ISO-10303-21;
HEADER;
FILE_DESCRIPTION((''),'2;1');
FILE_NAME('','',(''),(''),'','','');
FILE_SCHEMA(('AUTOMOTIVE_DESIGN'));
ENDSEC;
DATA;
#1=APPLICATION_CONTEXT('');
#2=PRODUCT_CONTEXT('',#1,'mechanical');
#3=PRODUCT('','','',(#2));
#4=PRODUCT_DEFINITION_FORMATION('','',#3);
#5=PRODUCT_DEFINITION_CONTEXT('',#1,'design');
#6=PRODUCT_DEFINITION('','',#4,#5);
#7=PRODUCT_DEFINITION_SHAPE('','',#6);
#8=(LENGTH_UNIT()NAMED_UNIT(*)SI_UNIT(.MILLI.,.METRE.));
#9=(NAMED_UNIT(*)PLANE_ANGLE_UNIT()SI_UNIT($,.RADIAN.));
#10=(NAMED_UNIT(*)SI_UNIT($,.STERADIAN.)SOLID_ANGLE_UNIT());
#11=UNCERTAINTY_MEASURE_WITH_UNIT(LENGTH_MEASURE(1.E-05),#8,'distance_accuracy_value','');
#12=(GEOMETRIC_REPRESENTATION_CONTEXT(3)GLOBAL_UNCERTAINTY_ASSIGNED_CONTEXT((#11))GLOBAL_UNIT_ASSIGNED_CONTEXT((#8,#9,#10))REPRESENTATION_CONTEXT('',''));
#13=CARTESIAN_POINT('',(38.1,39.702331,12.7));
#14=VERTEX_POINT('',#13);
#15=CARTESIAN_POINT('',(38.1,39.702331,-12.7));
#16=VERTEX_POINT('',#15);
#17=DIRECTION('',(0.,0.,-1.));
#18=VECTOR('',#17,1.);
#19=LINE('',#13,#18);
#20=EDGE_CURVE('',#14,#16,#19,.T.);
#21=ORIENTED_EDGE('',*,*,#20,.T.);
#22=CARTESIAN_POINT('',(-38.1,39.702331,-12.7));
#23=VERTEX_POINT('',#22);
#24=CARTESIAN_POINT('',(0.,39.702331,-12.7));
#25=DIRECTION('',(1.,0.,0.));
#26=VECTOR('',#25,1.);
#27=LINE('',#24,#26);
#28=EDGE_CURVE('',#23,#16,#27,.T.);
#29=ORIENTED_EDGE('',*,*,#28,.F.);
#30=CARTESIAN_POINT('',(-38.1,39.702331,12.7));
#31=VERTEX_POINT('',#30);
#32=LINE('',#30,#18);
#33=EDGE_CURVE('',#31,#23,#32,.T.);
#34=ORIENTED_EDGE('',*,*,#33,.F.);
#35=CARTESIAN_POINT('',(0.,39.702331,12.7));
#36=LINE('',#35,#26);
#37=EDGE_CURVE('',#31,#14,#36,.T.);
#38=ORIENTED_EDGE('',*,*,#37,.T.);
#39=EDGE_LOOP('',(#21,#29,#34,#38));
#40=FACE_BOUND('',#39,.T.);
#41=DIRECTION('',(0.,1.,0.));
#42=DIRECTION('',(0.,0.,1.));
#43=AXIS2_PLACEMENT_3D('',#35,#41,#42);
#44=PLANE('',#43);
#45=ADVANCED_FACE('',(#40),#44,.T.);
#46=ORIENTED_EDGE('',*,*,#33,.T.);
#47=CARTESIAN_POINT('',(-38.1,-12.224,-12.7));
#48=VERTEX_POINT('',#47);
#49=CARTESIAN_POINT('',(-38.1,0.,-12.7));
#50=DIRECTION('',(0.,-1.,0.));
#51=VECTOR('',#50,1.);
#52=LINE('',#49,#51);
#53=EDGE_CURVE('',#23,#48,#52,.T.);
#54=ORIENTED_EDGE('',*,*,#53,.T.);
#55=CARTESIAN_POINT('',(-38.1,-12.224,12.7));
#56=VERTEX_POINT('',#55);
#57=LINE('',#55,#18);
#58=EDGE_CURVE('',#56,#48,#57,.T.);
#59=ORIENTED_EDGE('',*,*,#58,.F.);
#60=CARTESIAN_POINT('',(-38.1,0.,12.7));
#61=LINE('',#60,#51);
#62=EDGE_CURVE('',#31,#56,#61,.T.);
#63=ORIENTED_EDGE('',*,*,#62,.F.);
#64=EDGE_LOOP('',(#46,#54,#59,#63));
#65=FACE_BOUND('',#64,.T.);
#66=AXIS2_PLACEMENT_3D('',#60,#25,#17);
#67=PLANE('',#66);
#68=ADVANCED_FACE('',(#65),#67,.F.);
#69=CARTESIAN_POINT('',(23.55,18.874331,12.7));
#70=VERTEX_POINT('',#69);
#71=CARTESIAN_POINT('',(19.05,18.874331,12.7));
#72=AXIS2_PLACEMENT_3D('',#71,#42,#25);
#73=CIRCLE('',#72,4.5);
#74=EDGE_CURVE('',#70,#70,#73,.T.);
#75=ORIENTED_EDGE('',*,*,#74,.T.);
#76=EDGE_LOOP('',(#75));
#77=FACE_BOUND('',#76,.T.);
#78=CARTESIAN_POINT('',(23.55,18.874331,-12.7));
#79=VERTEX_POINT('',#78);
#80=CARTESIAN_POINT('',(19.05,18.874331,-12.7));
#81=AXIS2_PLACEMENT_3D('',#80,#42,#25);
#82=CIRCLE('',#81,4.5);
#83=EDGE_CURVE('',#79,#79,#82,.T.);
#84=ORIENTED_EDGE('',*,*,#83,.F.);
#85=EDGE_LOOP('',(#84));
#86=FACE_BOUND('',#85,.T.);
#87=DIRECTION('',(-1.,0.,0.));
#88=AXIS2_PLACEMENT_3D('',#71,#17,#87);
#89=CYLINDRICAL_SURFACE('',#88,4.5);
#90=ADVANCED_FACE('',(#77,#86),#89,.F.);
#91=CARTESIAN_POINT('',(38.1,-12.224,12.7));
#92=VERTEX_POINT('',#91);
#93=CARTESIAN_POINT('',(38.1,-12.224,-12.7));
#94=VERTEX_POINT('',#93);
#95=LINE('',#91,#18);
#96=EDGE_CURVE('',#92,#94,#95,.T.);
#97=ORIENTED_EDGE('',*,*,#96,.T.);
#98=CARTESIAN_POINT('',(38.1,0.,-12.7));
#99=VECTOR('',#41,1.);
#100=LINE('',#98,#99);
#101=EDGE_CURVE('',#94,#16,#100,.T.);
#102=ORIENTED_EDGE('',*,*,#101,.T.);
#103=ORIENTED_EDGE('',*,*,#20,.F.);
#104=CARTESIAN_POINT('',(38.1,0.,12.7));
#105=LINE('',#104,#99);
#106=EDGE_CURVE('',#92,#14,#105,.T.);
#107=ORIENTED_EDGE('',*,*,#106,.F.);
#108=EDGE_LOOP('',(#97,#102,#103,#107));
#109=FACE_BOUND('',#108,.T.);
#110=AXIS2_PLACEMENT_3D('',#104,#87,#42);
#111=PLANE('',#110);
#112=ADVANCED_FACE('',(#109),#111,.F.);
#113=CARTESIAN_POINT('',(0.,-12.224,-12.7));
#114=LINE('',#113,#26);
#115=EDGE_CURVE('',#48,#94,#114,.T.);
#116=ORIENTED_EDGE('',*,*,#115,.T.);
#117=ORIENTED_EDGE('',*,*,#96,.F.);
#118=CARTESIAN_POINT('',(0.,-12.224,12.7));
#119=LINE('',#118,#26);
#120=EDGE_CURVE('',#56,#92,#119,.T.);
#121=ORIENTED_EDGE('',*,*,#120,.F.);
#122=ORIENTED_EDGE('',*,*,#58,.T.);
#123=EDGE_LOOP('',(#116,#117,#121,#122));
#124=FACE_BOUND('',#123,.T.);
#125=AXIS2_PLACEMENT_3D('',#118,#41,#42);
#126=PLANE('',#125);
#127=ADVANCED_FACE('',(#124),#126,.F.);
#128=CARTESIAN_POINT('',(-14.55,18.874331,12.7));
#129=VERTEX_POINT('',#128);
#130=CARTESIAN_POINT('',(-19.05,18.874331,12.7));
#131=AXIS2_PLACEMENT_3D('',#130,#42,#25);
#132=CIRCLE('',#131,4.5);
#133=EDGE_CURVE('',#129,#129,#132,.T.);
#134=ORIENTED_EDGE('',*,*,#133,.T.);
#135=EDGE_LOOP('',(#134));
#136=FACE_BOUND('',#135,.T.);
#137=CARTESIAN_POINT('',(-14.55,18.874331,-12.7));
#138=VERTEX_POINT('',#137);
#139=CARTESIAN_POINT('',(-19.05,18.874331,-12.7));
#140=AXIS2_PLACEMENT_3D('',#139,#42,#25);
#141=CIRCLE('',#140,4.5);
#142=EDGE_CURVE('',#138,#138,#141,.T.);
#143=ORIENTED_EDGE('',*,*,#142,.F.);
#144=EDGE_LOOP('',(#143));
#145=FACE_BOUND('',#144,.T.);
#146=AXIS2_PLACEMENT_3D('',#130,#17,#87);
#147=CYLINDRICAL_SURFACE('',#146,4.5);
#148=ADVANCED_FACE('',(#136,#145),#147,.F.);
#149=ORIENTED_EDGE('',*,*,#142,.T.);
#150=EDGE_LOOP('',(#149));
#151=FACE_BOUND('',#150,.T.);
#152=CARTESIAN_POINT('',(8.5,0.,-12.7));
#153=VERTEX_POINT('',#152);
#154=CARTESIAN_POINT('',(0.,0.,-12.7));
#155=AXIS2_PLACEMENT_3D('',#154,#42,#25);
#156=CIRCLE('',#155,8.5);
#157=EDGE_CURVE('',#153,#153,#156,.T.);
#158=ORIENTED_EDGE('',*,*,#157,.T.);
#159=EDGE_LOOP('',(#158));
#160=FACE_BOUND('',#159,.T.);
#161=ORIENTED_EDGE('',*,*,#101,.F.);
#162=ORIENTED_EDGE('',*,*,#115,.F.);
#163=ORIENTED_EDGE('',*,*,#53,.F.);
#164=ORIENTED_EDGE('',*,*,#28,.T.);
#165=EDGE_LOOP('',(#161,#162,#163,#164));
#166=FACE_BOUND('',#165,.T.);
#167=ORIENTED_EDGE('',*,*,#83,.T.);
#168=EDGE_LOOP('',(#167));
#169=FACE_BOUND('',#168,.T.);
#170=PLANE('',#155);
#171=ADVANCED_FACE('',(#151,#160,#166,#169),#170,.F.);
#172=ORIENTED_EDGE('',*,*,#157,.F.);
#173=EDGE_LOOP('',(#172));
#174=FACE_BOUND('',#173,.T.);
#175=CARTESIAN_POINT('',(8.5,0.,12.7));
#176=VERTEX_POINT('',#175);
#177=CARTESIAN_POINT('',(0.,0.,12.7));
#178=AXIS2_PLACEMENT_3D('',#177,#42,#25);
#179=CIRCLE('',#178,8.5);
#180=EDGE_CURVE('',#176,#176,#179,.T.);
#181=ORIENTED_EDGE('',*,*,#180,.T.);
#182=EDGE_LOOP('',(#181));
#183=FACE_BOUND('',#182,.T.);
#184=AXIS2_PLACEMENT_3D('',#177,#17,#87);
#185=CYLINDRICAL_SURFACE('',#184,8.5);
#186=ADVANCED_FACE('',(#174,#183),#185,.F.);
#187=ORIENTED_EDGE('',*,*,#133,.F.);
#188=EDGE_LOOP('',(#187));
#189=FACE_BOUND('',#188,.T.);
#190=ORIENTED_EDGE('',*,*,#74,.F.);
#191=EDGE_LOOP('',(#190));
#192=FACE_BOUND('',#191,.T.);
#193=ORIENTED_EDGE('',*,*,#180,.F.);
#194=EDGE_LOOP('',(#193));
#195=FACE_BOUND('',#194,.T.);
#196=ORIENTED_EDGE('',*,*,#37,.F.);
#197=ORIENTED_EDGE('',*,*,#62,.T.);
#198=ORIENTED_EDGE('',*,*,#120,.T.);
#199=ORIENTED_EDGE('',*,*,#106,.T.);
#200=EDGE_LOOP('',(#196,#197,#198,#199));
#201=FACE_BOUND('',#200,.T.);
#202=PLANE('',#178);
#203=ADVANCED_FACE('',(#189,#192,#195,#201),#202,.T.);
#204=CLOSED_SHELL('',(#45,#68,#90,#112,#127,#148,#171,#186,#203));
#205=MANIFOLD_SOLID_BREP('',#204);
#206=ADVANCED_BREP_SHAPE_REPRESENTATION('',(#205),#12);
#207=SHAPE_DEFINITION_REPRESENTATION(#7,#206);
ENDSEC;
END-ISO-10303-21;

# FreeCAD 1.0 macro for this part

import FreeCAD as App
import Part
import Sketcher
from FreeCAD import Vector
Q = App.Units.Quantity


def add_polygon(sketch, points):
    """Adds a closed chain of lines whose ends are joined by coincident constraints."""
    first, n = sketch.GeometryCount, len(points)
    for a, b in zip(points, points[1:] + points[:1]):
        sketch.addGeometry(Part.LineSegment(App.Vector(*a, 0), App.Vector(*b, 0)), False)
    for i in range(n):
        sketch.addConstraint(Sketcher.Constraint("Coincident", first + i, 2, first + (i + 1) % n, 1))

doc = App.newDocument("Part")
body = doc.addObject("PartDesign::Body", "Body")

# Sketch on XY plane
sketch1 = body.newObject("Sketcher::SketchObject", "Sketch")
sketch1.AttachmentSupport = (doc.getObject("XY_Plane"), [""])
sketch1.MapMode = "FlatFace"
add_polygon(sketch1, [(38.1, 39.702331), (-38.1, 39.702331), (-38.1, -12.224), (38.1, -12.224)])  # lines 0-3
sketch1.addGeometry(Part.Circle(Vector(0, 0, 0), Vector(0, 0, 1), 8.5), False)  # 4
sketch1.addGeometry(Part.Circle(Vector(19.05, 18.874331, 0), Vector(0, 0, 1), 4.5), False)  # 5
sketch1.addGeometry(Part.Circle(Vector(-19.05, 18.874331, 0), Vector(0, 0, 1), 4.5), False)  # 6
sketch1.addConstraint(Sketcher.Constraint("Horizontal", 0))
sketch1.addConstraint(Sketcher.Constraint("Vertical", 1))
sketch1.addConstraint(Sketcher.Constraint("Horizontal", 2))
sketch1.addConstraint(Sketcher.Constraint("Vertical", 3))
sketch1.addConstraint(Sketcher.Constraint("Coincident", 4, 3, -1, 1))
sketch1.addConstraint(Sketcher.Constraint("Equal", 5, 6))
sketch1.addConstraint(Sketcher.Constraint("Symmetric", 5, 3, 6, 3, -2))
sketch1.addConstraint(Sketcher.Constraint("Diameter", 4, Q("17 mm")))
sketch1.addConstraint(Sketcher.Constraint("Diameter", 5, Q("9 mm")))
sketch1.addConstraint(Sketcher.Constraint("DistanceX", 0, 2, 0, 1, Q("76.2 mm")))
sketch1.addConstraint(Sketcher.Constraint("DistanceX", 0, 2, -1, 1, Q("38.1 mm")))
sketch1.addConstraint(Sketcher.Constraint("DistanceX", 6, 3, 5, 3, Q("38.1 mm")))
sketch1.addConstraint(Sketcher.Constraint("DistanceY", 1, 2, -1, 1, Q("12.224 mm")))
sketch1.addConstraint(Sketcher.Constraint("DistanceY", 6, 3, 0, 2, Q("20.828 mm")))
sketch1.addConstraint(Sketcher.Constraint("DistanceY", 1, 2, 1, 1, Q("51.926331 mm")))
pad1 = body.newObject("PartDesign::Pad", "Pad")
pad1.Profile = sketch1
pad1.Length = 25.4
pad1.Midplane = True

doc.recompute()
